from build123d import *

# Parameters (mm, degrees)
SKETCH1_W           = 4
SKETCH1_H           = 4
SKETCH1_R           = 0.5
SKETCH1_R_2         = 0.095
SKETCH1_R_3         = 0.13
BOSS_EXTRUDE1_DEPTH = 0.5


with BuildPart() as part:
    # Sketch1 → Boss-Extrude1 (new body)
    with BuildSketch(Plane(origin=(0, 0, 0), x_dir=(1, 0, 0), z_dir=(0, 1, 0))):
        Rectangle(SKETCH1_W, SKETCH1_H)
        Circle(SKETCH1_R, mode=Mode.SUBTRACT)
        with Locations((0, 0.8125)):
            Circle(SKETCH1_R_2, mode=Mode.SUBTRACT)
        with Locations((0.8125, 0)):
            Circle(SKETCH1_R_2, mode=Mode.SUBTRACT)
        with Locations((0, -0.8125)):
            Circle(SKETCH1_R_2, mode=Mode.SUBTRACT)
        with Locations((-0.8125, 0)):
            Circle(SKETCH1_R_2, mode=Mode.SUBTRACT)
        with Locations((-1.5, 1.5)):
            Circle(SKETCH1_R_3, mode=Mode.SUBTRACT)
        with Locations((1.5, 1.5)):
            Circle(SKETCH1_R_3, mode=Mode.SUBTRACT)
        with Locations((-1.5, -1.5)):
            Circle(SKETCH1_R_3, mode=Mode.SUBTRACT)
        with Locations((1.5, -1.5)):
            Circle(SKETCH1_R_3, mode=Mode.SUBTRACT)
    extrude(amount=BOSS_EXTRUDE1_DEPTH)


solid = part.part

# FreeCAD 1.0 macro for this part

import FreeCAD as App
import Part
import Sketcher

V = App.Vector
Q = App.Units.Quantity

doc = App.newDocument("Part")
body = doc.addObject("PartDesign::Body", "Body")

# Sketch on XZ plane
sketch1 = doc.addObject("Sketcher::SketchObject", "Sketch")
body.addObject(sketch1)
sketch1.AttachmentSupport = (doc.XZ_Plane, [""])
sketch1.MapMode = "FlatFace"
sketch1.addGeometry(Part.LineSegment(V(-2, -2, 0), V(-2, 2, 0)), False)
sketch1.addGeometry(Part.LineSegment(V(-2, 2, 0), V(2, 2, 0)), False)
sketch1.addGeometry(Part.LineSegment(V(2, 2, 0), V(2, -2, 0)), False)
sketch1.addGeometry(Part.LineSegment(V(2, -2, 0), V(-2, -2, 0)), False)
sketch1.addGeometry(Part.Circle(V(-1.5, 1.5, 0), V(0, 0, 1), 0.13), False)
sketch1.addGeometry(Part.Circle(V(1.5, 1.5, 0), V(0, 0, 1), 0.13), False)
sketch1.addGeometry(Part.Circle(V(0, 0.8125, 0), V(0, 0, 1), 0.095), False)
sketch1.addGeometry(Part.Circle(V(-0.8125, 0, 0), V(0, 0, 1), 0.095), False)
sketch1.addGeometry(Part.Circle(V(-1.5, -1.5, 0), V(0, 0, 1), 0.13), False)
sketch1.addGeometry(Part.Circle(V(0, 0, 0), V(0, 0, 1), 0.5), False)
sketch1.addGeometry(Part.Circle(V(0.8125, 0, 0), V(0, 0, 1), 0.095), False)
sketch1.addGeometry(Part.Circle(V(0, -0.8125, 0), V(0, 0, 1), 0.095), False)
sketch1.addGeometry(Part.Circle(V(1.5, -1.5, 0), V(0, 0, 1), 0.13), False)
sketch1.addConstraint(Sketcher.Constraint("Coincident", 0, 2, 1, 1))
sketch1.addConstraint(Sketcher.Constraint("Coincident", 1, 2, 2, 1))
sketch1.addConstraint(Sketcher.Constraint("Coincident", 2, 2, 3, 1))
sketch1.addConstraint(Sketcher.Constraint("Coincident", 3, 2, 0, 1))
sketch1.addConstraint(Sketcher.Constraint("Vertical", 0))
sketch1.addConstraint(Sketcher.Constraint("Horizontal", 1))
sketch1.addConstraint(Sketcher.Constraint("Vertical", 2))
sketch1.addConstraint(Sketcher.Constraint("Horizontal", 3))
sketch1.addConstraint(Sketcher.Constraint("Coincident", 9, 3, -1, 1))
sketch1.addConstraint(Sketcher.Constraint("Equal", 4, 5))
sketch1.addConstraint(Sketcher.Constraint("Equal", 6, 7))
sketch1.addConstraint(Sketcher.Constraint("Equal", 5, 8))
sketch1.addConstraint(Sketcher.Constraint("Equal", 7, 10))
sketch1.addConstraint(Sketcher.Constraint("Equal", 10, 11))
sketch1.addConstraint(Sketcher.Constraint("Equal", 8, 12))
sketch1.addConstraint(Sketcher.Constraint("Symmetric", 5, 3, 8, 3, -1, 1))
sketch1.addConstraint(Sketcher.Constraint("Symmetric", 7, 3, 10, 3, -1, 1))
sketch1.addConstraint(Sketcher.Constraint("Symmetric", 6, 3, 11, 3, -1, 1))
sketch1.addConstraint(Sketcher.Constraint("Symmetric", 4, 3, 12, 3, -1, 1))
sketch1.addConstraint(Sketcher.Constraint("Symmetric", 0, 2, 2, 2, -1, 1))
sketch1.addConstraint(Sketcher.Constraint("Symmetric", 4, 3, 5, 3, -2))
sketch1.addConstraint(Sketcher.Constraint("PointOnObject", 6, 3, -2))
sketch1.addConstraint(Sketcher.Constraint("PointOnObject", 7, 3, -1))
sketch1.addConstraint(Sketcher.Constraint("Equal", 3, 0))
sketch1.addConstraint(Sketcher.Constraint("Diameter", 9, Q("1 mm")))
sketch1.addConstraint(Sketcher.Constraint("Diameter", 4, Q("0.26 mm")))
sketch1.addConstraint(Sketcher.Constraint("Diameter", 6, Q("0.19 mm")))
sketch1.addConstraint(Sketcher.Constraint("DistanceX", 1, 1, 1, 2, Q("4 mm")))
sketch1.addConstraint(Sketcher.Constraint("DistanceX", 4, 3, 5, 3, Q("3 mm")))
sketch1.addConstraint(Sketcher.Constraint("DistanceY", 8, 3, 4, 3, Q("3 mm")))
sketch1.addConstraint(Sketcher.Constraint("DistanceX", 7, 3, 10, 3, Q("1.625 mm")))
sketch1.addConstraint(Sketcher.Constraint("DistanceY", 11, 3, 6, 3, Q("1.625 mm")))
pad1 = doc.addObject("PartDesign::Pad", "Pad")
body.addObject(pad1)
pad1.Profile = sketch1
pad1.Length = 0.5
pad1.Reversed = True

doc.recompute()
